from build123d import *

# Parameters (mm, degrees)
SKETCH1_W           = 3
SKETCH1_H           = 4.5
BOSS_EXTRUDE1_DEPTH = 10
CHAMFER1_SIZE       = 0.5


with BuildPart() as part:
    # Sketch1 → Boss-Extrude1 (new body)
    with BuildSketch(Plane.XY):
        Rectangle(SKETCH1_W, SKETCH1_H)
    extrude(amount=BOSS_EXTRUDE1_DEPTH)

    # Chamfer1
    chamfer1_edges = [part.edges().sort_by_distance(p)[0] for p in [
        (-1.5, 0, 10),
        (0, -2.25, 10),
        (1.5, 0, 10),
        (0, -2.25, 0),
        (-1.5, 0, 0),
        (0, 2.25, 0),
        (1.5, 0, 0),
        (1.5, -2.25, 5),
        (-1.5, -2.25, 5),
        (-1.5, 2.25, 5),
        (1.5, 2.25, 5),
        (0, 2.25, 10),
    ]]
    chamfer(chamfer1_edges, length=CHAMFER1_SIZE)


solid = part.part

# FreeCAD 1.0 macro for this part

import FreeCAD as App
import Part
import Sketcher
from FreeCAD import Vector
Q = App.Units.Quantity

doc = App.newDocument("Part")
body = doc.addObject("PartDesign::Body", "Body")

# Sketch on XY plane
sketch1 = doc.addObject("Sketcher::SketchObject", "Sketch")
body.addObject(sketch1)
sketch1.AttachmentSupport = (doc.XY_Plane, [""])
sketch1.MapMode = "FlatFace"
sketch1.addGeometry(Part.LineSegment(Vector(-1.5, 2.2, 0), Vector(-1.5, -2.2, 0)), False)
sketch1.addGeometry(Part.LineSegment(Vector(-1.5, -2.2, 0), Vector(1.5, -2.2, 0)), False)
sketch1.addGeometry(Part.LineSegment(Vector(1.5, -2.2, 0), Vector(1.5, 2.2, 0)), False)
sketch1.addGeometry(Part.LineSegment(Vector(1.5, 2.2, 0), Vector(-1.5, 2.2, 0)), False)
sketch1.addConstraint(Sketcher.Constraint("Coincident", 0, 2, 1, 1))
sketch1.addConstraint(Sketcher.Constraint("Coincident", 1, 2, 2, 1))
sketch1.addConstraint(Sketcher.Constraint("Coincident", 2, 2, 3, 1))
sketch1.addConstraint(Sketcher.Constraint("Coincident", 3, 2, 0, 1))
sketch1.addConstraint(Sketcher.Constraint("Vertical", 0))
sketch1.addConstraint(Sketcher.Constraint("Horizontal", 1))
sketch1.addConstraint(Sketcher.Constraint("Vertical", 2))
sketch1.addConstraint(Sketcher.Constraint("Horizontal", 3))
sketch1.addConstraint(Sketcher.Constraint("Symmetric", 0, 2, 2, 2, -1, 1))
sketch1.addConstraint(Sketcher.Constraint("DistanceX", 1, 1, 1, 2, Q("3 mm")))
sketch1.addConstraint(Sketcher.Constraint("DistanceY", 0, 2, 0, 1, Q("4.5 mm")))
pad1 = doc.addObject("PartDesign::Pad", "Pad")
body.addObject(pad1)
pad1.Profile = sketch1
pad1.Length = 10
doc.recompute()

chamfer = doc.addObject("PartDesign::Chamfer", "Chamfer")
body.addObject(chamfer)
chamfer.Base = (pad1, ["Edge1"])
chamfer.UseAllEdges = True
chamfer.Size = 0.5

doc.recompute()
